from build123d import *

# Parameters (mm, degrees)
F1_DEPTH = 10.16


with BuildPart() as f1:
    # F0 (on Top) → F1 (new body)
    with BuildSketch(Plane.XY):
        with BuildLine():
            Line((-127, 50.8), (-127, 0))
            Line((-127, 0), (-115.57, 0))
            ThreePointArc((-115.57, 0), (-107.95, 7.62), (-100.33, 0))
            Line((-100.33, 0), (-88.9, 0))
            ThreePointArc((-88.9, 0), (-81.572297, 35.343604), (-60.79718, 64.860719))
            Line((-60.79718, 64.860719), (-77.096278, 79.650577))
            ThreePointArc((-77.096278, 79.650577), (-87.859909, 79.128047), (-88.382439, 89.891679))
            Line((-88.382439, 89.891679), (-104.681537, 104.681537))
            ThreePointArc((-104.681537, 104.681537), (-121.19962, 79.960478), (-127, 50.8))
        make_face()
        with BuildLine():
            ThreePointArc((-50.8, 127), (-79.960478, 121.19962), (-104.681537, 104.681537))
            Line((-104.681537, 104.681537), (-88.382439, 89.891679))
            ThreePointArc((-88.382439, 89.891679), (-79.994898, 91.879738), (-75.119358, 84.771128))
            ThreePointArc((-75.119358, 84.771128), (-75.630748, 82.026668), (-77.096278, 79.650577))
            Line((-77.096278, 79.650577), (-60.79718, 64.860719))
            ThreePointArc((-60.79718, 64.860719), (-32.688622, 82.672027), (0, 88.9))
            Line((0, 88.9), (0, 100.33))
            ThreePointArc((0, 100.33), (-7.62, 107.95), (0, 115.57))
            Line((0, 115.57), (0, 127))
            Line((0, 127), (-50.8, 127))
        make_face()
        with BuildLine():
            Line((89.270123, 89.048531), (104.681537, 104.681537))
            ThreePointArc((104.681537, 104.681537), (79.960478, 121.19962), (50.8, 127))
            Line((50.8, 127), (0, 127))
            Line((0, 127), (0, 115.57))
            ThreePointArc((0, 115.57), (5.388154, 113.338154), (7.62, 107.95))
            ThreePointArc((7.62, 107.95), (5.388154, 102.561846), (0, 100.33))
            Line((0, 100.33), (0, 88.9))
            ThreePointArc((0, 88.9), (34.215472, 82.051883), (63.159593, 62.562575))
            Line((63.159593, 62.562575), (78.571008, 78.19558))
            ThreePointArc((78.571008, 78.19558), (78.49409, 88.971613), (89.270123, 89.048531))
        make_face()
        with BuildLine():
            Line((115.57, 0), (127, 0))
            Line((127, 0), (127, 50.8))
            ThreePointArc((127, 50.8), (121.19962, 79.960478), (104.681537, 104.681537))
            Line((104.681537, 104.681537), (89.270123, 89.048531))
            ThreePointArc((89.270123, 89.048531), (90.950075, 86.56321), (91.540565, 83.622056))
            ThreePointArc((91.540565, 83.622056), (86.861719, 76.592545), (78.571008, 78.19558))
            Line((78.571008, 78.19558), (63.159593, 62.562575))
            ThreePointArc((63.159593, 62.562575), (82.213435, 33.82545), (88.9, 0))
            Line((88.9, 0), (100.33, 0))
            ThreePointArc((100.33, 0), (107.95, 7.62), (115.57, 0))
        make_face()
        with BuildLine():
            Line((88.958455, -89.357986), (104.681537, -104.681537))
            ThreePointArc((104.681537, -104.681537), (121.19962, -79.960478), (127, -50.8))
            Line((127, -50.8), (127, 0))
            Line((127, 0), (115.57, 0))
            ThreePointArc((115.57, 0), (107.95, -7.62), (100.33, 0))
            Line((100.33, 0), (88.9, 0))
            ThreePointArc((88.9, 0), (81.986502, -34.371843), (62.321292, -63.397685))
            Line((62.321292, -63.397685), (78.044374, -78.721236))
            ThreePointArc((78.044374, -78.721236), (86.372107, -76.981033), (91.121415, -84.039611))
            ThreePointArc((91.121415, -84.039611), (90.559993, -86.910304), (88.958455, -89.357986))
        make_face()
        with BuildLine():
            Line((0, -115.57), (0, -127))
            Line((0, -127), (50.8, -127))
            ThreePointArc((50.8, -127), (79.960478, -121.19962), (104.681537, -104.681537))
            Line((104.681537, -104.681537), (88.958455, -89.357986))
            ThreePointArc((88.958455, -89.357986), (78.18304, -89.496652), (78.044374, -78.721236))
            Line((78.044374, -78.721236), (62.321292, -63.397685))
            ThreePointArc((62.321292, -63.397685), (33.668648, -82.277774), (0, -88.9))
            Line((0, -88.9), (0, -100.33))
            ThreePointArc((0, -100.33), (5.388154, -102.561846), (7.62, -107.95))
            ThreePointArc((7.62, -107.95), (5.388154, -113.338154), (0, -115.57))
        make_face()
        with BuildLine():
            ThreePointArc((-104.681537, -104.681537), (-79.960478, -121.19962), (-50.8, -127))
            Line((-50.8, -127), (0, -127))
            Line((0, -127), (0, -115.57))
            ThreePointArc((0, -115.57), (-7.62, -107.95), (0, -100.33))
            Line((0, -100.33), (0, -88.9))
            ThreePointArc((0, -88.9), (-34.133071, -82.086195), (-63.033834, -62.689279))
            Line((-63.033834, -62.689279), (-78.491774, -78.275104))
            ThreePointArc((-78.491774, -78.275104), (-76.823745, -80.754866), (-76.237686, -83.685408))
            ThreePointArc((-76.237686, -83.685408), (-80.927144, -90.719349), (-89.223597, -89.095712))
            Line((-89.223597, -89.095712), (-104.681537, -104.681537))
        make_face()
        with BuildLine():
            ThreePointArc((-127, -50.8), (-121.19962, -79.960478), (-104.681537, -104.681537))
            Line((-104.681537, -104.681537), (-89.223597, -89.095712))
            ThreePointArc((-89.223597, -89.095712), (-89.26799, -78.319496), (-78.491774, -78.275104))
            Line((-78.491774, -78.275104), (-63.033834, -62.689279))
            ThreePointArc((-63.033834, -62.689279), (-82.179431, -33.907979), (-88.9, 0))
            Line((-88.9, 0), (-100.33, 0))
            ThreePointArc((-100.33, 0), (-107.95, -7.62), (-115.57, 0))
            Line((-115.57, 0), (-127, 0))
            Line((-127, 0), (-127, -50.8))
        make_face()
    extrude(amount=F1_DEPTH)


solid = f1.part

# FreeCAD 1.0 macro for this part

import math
import FreeCAD as App
import Part
import Sketcher
from FreeCAD import Vector
Q = App.Units.Quantity

doc = App.newDocument("Part")
body = doc.addObject("PartDesign::Body", "Body")

# Sketch on XY plane
sketch1 = body.newObject("Sketcher::SketchObject", "Sketch")
sketch1.AttachmentSupport = (doc.getObject("XY_Plane"), [""])
sketch1.MapMode = "FlatFace"
sketch1.addGeometry(Part.LineSegment(Vector(-127, 50.8, 0), Vector(-127, -50.8, 0)), False)
sketch1.addGeometry(Part.ArcOfCircle(Part.Circle(Vector(-50.799995, -50.799999, 0), Vector(0, 0, 1), 76.200005), math.radians(-179.999999), math.radians(-135.000002)), False)
sketch1.addGeometry(Part.ArcOfCircle(Part.Circle(Vector(-50.799999, -50.799995, 0), Vector(0, 0, 1), 76.200005), math.radians(-134.999998), math.radians(-90.000001)), False)
sketch1.addGeometry(Part.LineSegment(Vector(-50.8, -127, 0), Vector(50.8, -127, 0)), False)
sketch1.addGeometry(Part.ArcOfCircle(Part.Circle(Vector(50.799999, -50.799995, 0), Vector(0, 0, 1), 76.200005), math.radians(-89.999999), math.radians(-45.000002)), False)
sketch1.addGeometry(Part.ArcOfCircle(Part.Circle(Vector(50.799995, -50.799999, 0), Vector(0, 0, 1), 76.200005), math.radians(-44.999998), math.radians(-0.000001)), False)
sketch1.addGeometry(Part.LineSegment(Vector(127, -50.8, 0), Vector(127, 50.8, 0)), False)
sketch1.addGeometry(Part.ArcOfCircle(Part.Circle(Vector(50.799995, 50.799999, 0), Vector(0, 0, 1), 76.200005), math.radians(0.000001), math.radians(44.999998)), False)
sketch1.addGeometry(Part.ArcOfCircle(Part.Circle(Vector(50.799999, 50.799995, 0), Vector(0, 0, 1), 76.200005), math.radians(45.000002), math.radians(89.999999)), False)
sketch1.addGeometry(Part.LineSegment(Vector(50.8, 127, 0), Vector(-50.8, 127, 0)), False)
sketch1.addGeometry(Part.ArcOfCircle(Part.Circle(Vector(-50.799999, 50.799995, 0), Vector(0, 0, 1), 76.200005), math.radians(90.000001), math.radians(134.999998)), False)
sketch1.addGeometry(Part.ArcOfCircle(Part.Circle(Vector(-50.799995, 50.799999, 0), Vector(0, 0, 1), 76.200005), math.radians(135.000002), math.radians(179.999999)), False)
sketch1.addGeometry(Part.Circle(Vector(-107.95, 0, 0), Vector(0, 0, 1), 7.62), False)
sketch1.addGeometry(Part.ArcOfCircle(Part.Circle(Vector(0, 0, 0), Vector(0, 0, 1), 88.9), math.radians(133.147808), math.radians(180)), False)
sketch1.addGeometry(Part.ArcOfCircle(Part.Circle(Vector(-0.000002, 0.000006, 0), Vector(0, 0, 1), 88.899994), math.radians(89.999999), math.radians(133.14781)), False)
sketch1.addGeometry(Part.ArcOfCircle(Part.Circle(Vector(0.000001, 0.000003, 0), Vector(0, 0, 1), 88.899997), math.radians(44.72792), math.radians(90.000001)), False)
sketch1.addGeometry(Part.ArcOfCircle(Part.Circle(Vector(-0.000002, -0.000001, 0), Vector(0, 0, 1), 88.900002), math.radians(0.000001), math.radians(44.727921)), False)
sketch1.addGeometry(Part.ArcOfCircle(Part.Circle(Vector(0.00001, -0.000004, 0), Vector(0, 0, 1), 88.89999), math.radians(-45.490552), math.radians(0.000002)), False)
sketch1.addGeometry(Part.ArcOfCircle(Part.Circle(Vector(-0.000001, 0, 0), Vector(0, 0, 1), 88.9), math.radians(-90), math.radians(-45.490548)), False)
sketch1.addGeometry(Part.ArcOfCircle(Part.Circle(Vector(0.000001, 0.000001, 0), Vector(0, 0, 1), 88.900001), math.radians(-135.157024), math.radians(-90.000001)), False)
sketch1.addGeometry(Part.ArcOfCircle(Part.Circle(Vector(0.000003, 0.000002, 0), Vector(0, 0, 1), 88.900003), math.radians(-179.999999), math.radians(-135.157024)), False)
sketch1.addGeometry(Part.ArcOfCircle(Part.Circle(Vector(-83.857685, -83.685407, 0), Vector(0, 0, 1), 7.619999), math.radians(-0.000005), math.radians(45.236029)), False)
sketch1.addGeometry(Part.ArcOfCircle(Part.Circle(Vector(-83.857685, -83.685409, 0), Vector(0, 0, 1), 7.619999), math.radians(-134.763976), math.radians(0.000004)), False)
sketch1.addGeometry(Part.ArcOfCircle(Part.Circle(Vector(-83.857686, -83.685408, 0), Vector(0, 0, 1), 7.62), math.radians(45.236023), math.radians(225.236033)), False)
sketch1.addGeometry(Part.ArcOfCircle(Part.Circle(Vector(0.000001, -107.949999, 0), Vector(0, 0, 1), 7.619999), math.radians(-0.000008), math.radians(90.000008)), False)
sketch1.addGeometry(Part.ArcOfCircle(Part.Circle(Vector(0.000001, -107.950001, 0), Vector(0, 0, 1), 7.619999), math.radians(-90.000008), math.radians(0.000008)), False)
sketch1.addGeometry(Part.ArcOfCircle(Part.Circle(Vector(0, -107.95, 0), Vector(0, 0, 1), 7.62), math.radians(90), math.radians(270)), False)
sketch1.addGeometry(Part.ArcOfCircle(Part.Circle(Vector(83.501414, -84.039612, 0), Vector(0, 0, 1), 7.620001), math.radians(0.000005), math.radians(135.737276)), False)
sketch1.addGeometry(Part.ArcOfCircle(Part.Circle(Vector(83.501417, -84.039612, 0), Vector(0, 0, 1), 7.619998), math.radians(-44.262729), math.radians(0.000005)), False)
sketch1.addGeometry(Part.ArcOfCircle(Part.Circle(Vector(83.501414, -84.039611, 0), Vector(0, 0, 1), 7.62), math.radians(135.737281), math.radians(315.737281)), False)
sketch1.addGeometry(Part.Circle(Vector(107.95, 0, 0), Vector(0, 0, 1), 7.62), False)
sketch1.addGeometry(Part.ArcOfCircle(Part.Circle(Vector(83.920565, 83.622056, 0), Vector(0, 0, 1), 7.62), math.radians(45.408963), math.radians(225.408963)), False)
sketch1.addGeometry(Part.ArcOfCircle(Part.Circle(Vector(83.920562, 83.622055, 0), Vector(0, 0, 1), 7.620003), math.radians(0.000007), math.radians(45.408949)), False)
sketch1.addGeometry(Part.ArcOfCircle(Part.Circle(Vector(83.920565, 83.622055, 0), Vector(0, 0, 1), 7.62), math.radians(-134.591039), math.radians(0.000008)), False)
sketch1.addGeometry(Part.ArcOfCircle(Part.Circle(Vector(0, 107.95, 0), Vector(0, 0, 1), 7.62), math.radians(90), math.radians(270)), False)
sketch1.addGeometry(Part.ArcOfCircle(Part.Circle(Vector(0.000001, 107.950001, 0), Vector(0, 0, 1), 7.619999), math.radians(-0.000008), math.radians(90.000008)), False)
sketch1.addGeometry(Part.ArcOfCircle(Part.Circle(Vector(0.000001, 107.949999, 0), Vector(0, 0, 1), 7.619999), math.radians(-90.000008), math.radians(0.000008)), False)
sketch1.addGeometry(Part.ArcOfCircle(Part.Circle(Vector(-82.739359, 84.771128, 0), Vector(0, 0, 1), 7.62), math.radians(137.779289), math.radians(317.77929)), False)
sketch1.addGeometry(Part.ArcOfCircle(Part.Circle(Vector(-82.739358, 84.771127, 0), Vector(0, 0, 1), 7.62), math.radians(0.000004), math.radians(137.779287)), False)
sketch1.addGeometry(Part.ArcOfCircle(Part.Circle(Vector(-82.739358, 84.771129, 0), Vector(0, 0, 1), 7.62), math.radians(-42.220715), math.radians(-0.000005)), False)
sketch1.addConstraint(Sketcher.Constraint("Tangent", 0, 2, 1, 1))
sketch1.addConstraint(Sketcher.Constraint("Tangent", 1, 2, 2, 1))
sketch1.addConstraint(Sketcher.Constraint("Tangent", 2, 2, 3, 1))
sketch1.addConstraint(Sketcher.Constraint("Tangent", 3, 2, 4, 1))
sketch1.addConstraint(Sketcher.Constraint("Tangent", 4, 2, 5, 1))
sketch1.addConstraint(Sketcher.Constraint("Tangent", 5, 2, 6, 1))
sketch1.addConstraint(Sketcher.Constraint("Tangent", 6, 2, 7, 1))
sketch1.addConstraint(Sketcher.Constraint("Tangent", 7, 2, 8, 1))
sketch1.addConstraint(Sketcher.Constraint("Tangent", 8, 2, 9, 1))
sketch1.addConstraint(Sketcher.Constraint("Tangent", 9, 2, 10, 1))
sketch1.addConstraint(Sketcher.Constraint("Tangent", 10, 2, 11, 1))
sketch1.addConstraint(Sketcher.Constraint("Tangent", 11, 2, 0, 1))
sketch1.addConstraint(Sketcher.Constraint("Tangent", 13, 1, 14, 2))
sketch1.addConstraint(Sketcher.Constraint("Tangent", 14, 1, 15, 2))
sketch1.addConstraint(Sketcher.Constraint("Tangent", 15, 1, 16, 2))
sketch1.addConstraint(Sketcher.Constraint("Tangent", 16, 1, 17, 2))
sketch1.addConstraint(Sketcher.Constraint("Tangent", 17, 1, 18, 2))
sketch1.addConstraint(Sketcher.Constraint("Tangent", 18, 1, 19, 2))
sketch1.addConstraint(Sketcher.Constraint("Tangent", 19, 1, 20, 2))
sketch1.addConstraint(Sketcher.Constraint("Tangent", 20, 1, 13, 2))
sketch1.addConstraint(Sketcher.Constraint("Tangent", 21, 1, 22, 2))
sketch1.addConstraint(Sketcher.Constraint("Tangent", 22, 1, 23, 2))
sketch1.addConstraint(Sketcher.Constraint("Tangent", 23, 1, 21, 2))
sketch1.addConstraint(Sketcher.Constraint("Tangent", 24, 1, 25, 2))
sketch1.addConstraint(Sketcher.Constraint("Tangent", 25, 1, 26, 2))
sketch1.addConstraint(Sketcher.Constraint("Tangent", 26, 1, 24, 2))
sketch1.addConstraint(Sketcher.Constraint("Tangent", 27, 1, 28, 2))
sketch1.addConstraint(Sketcher.Constraint("Tangent", 28, 1, 29, 2))
sketch1.addConstraint(Sketcher.Constraint("Tangent", 29, 1, 27, 2))
sketch1.addConstraint(Sketcher.Constraint("Tangent", 31, 1, 32, 2))
sketch1.addConstraint(Sketcher.Constraint("Tangent", 32, 1, 33, 2))
sketch1.addConstraint(Sketcher.Constraint("Tangent", 33, 1, 31, 2))
sketch1.addConstraint(Sketcher.Constraint("Tangent", 34, 1, 35, 2))
sketch1.addConstraint(Sketcher.Constraint("Tangent", 35, 1, 36, 2))
sketch1.addConstraint(Sketcher.Constraint("Tangent", 36, 1, 34, 2))
sketch1.addConstraint(Sketcher.Constraint("Tangent", 37, 1, 38, 2))
sketch1.addConstraint(Sketcher.Constraint("Tangent", 38, 1, 39, 2))
sketch1.addConstraint(Sketcher.Constraint("Tangent", 39, 1, 37, 2))
sketch1.addConstraint(Sketcher.Constraint("Vertical", 0))
sketch1.addConstraint(Sketcher.Constraint("Horizontal", 3))
sketch1.addConstraint(Sketcher.Constraint("Vertical", 6))
sketch1.addConstraint(Sketcher.Constraint("Horizontal", 9))
sketch1.addConstraint(Sketcher.Constraint("Coincident", 13, 3, -1, 1))
sketch1.addConstraint(Sketcher.Constraint("Coincident", 15, 3, -1, 1))
sketch1.addConstraint(Sketcher.Constraint("Coincident", 18, 3, -1, 1))
sketch1.addConstraint(Sketcher.Constraint("Equal", 1, 2))
sketch1.addConstraint(Sketcher.Constraint("Equal", 2, 4))
sketch1.addConstraint(Sketcher.Constraint("Equal", 4, 5))
sketch1.addConstraint(Sketcher.Constraint("Equal", 5, 7))
sketch1.addConstraint(Sketcher.Constraint("Equal", 7, 8))
sketch1.addConstraint(Sketcher.Constraint("Equal", 8, 10))
sketch1.addConstraint(Sketcher.Constraint("Equal", 10, 11))
sketch1.addConstraint(Sketcher.Constraint("Equal", 13, 16))
sketch1.addConstraint(Sketcher.Constraint("Equal", 12, 21))
sketch1.addConstraint(Sketcher.Constraint("Equal", 23, 24))
sketch1.addConstraint(Sketcher.Constraint("Equal", 26, 27))
sketch1.addConstraint(Sketcher.Constraint("Equal", 29, 30))
sketch1.addConstraint(Sketcher.Constraint("Equal", 30, 31))
sketch1.addConstraint(Sketcher.Constraint("Equal", 33, 34))
sketch1.addConstraint(Sketcher.Constraint("Equal", 36, 37))
sketch1.addConstraint(Sketcher.Constraint("Symmetric", 1, 3, 7, 3, -1, 1))
sketch1.addConstraint(Sketcher.Constraint("Symmetric", 12, 3, 30, 3, -1, 1))
sketch1.addConstraint(Sketcher.Constraint("Symmetric", 24, 3, 34, 3, -1, 1))
sketch1.addConstraint(Sketcher.Constraint("Symmetric", 24, 1, 35, 1, -1))
sketch1.addConstraint(Sketcher.Constraint("PointOnObject", 12, 3, -1))
sketch1.addConstraint(Sketcher.Constraint("PointOnObject", 14, 1, -2))
sketch1.addConstraint(Sketcher.Constraint("PointOnObject", 16, 1, -1))
sketch1.addConstraint(Sketcher.Constraint("PointOnObject", 18, 1, -2))
sketch1.addConstraint(Sketcher.Constraint("PointOnObject", 20, 1, -1))
sketch1.addConstraint(Sketcher.Constraint("PointOnObject", 25, 1, -2))
sketch1.addConstraint(Sketcher.Constraint("PointOnObject", 26, 1, -2))
sketch1.addConstraint(Sketcher.Constraint("PointOnObject", 34, 1, -2))
sketch1.addConstraint(Sketcher.Constraint("PointOnObject", 36, 1, -2))
sketch1.addConstraint(Sketcher.Constraint("Horizontal", 1, 2, 4, 2))
sketch1.addConstraint(Sketcher.Constraint("Horizontal", 7, 2, 10, 2))
sketch1.addConstraint(Sketcher.Constraint("Horizontal", 23, 3, 21, 1))
sketch1.addConstraint(Sketcher.Constraint("Horizontal", 26, 3, 24, 1))
sketch1.addConstraint(Sketcher.Constraint("Horizontal", 29, 3, 27, 1))
sketch1.addConstraint(Sketcher.Constraint("Horizontal", 33, 3, 32, 1))
sketch1.addConstraint(Sketcher.Constraint("Horizontal", 39, 3, 38, 1))
sketch1.addConstraint(Sketcher.Constraint("Vertical", 4, 2, 7, 2))
sketch1.addConstraint(Sketcher.Constraint("Equal", 9, 0))
sketch1.addConstraint(Sketcher.Constraint("Radius", 1, Q("3.0000002 in")))
sketch1.addConstraint(Sketcher.Constraint("Diameter", 12, Q("0.6 in")))
sketch1.addConstraint(Sketcher.Constraint("Radius", 13, Q("3.5 in")))
sketch1.addConstraint(Sketcher.Constraint("DistanceX", 3, 1, 3, 2, Q("4 in")))
sketch1.addConstraint(Sketcher.Constraint("DistanceX", 12, 3, -1, 1, Q("4.25 in")))
sketch1.addConstraint(Sketcher.Constraint("DistanceY", 24, 3, -1, 1, Q("4.25 in")))
sketch1.addConstraint(Sketcher.Constraint("DistanceY", 22, 3, -1, 1, 83.685409))
sketch1.addConstraint(Sketcher.Constraint("DistanceY", 27, 3, -1, 1, 84.039612))
sketch1.addConstraint(Sketcher.Constraint("DistanceX", 37, 3, -1, 1, 82.739359))
sketch1.addConstraint(Sketcher.Constraint("DistanceY", -1, 1, 39, 3, 84.771129))
sketch1.addConstraint(Sketcher.Constraint("DistanceX", 13, 1, -1, 1, 60.79718))
sketch1.addConstraint(Sketcher.Constraint("DistanceY", 19, 1, -1, 1, 62.689279))
sketch1.addConstraint(Sketcher.Constraint("DistanceY", -1, 1, 31, 1, 89.048531))
sketch1.addConstraint(Sketcher.Constraint("DistanceX", -1, 1, 33, 1, 78.571008))
sketch1.addConstraint(Sketcher.Constraint("DistanceY", -1, 1, 33, 1, 78.19558))
sketch1.addConstraint(Sketcher.Constraint("DistanceX", 37, 1, -1, 1, 88.382439))
sketch1.addConstraint(Sketcher.Constraint("DistanceX", 21, 3, -1, 1, 83.857685))
sketch1.addConstraint(Sketcher.Constraint("DistanceX", -1, 1, 27, 3, 83.501414))
sketch1.addConstraint(Sketcher.Constraint("DistanceX", -1, 1, 31, 3, 83.920565))
sketch1.addConstraint(Sketcher.Constraint("DistanceX", 1, 2, -1, 1, 104.681537))
sketch1.addConstraint(Sketcher.Constraint("DistanceX", -1, 1, 15, 1, 63.159593))
sketch1.addConstraint(Sketcher.Constraint("DistanceX", -1, 1, 17, 1, 62.321292))
sketch1.addConstraint(Sketcher.Constraint("DistanceX", 22, 1, -1, 1, 89.223597))
sketch1.addConstraint(Sketcher.Constraint("DistanceX", 23, 1, -1, 1, 78.491774))
sketch1.addConstraint(Sketcher.Constraint("DistanceX", -1, 1, 28, 1, 88.958455))
sketch1.addConstraint(Sketcher.Constraint("DistanceX", -1, 1, 29, 1, 78.044374))
sketch1.addConstraint(Sketcher.Constraint("DistanceX", 39, 1, -1, 1, 77.096278))
pad1 = body.newObject("PartDesign::Pad", "Pad")
pad1.Profile = sketch1
pad1.Length = Q("0.4 in")

doc.recompute()
